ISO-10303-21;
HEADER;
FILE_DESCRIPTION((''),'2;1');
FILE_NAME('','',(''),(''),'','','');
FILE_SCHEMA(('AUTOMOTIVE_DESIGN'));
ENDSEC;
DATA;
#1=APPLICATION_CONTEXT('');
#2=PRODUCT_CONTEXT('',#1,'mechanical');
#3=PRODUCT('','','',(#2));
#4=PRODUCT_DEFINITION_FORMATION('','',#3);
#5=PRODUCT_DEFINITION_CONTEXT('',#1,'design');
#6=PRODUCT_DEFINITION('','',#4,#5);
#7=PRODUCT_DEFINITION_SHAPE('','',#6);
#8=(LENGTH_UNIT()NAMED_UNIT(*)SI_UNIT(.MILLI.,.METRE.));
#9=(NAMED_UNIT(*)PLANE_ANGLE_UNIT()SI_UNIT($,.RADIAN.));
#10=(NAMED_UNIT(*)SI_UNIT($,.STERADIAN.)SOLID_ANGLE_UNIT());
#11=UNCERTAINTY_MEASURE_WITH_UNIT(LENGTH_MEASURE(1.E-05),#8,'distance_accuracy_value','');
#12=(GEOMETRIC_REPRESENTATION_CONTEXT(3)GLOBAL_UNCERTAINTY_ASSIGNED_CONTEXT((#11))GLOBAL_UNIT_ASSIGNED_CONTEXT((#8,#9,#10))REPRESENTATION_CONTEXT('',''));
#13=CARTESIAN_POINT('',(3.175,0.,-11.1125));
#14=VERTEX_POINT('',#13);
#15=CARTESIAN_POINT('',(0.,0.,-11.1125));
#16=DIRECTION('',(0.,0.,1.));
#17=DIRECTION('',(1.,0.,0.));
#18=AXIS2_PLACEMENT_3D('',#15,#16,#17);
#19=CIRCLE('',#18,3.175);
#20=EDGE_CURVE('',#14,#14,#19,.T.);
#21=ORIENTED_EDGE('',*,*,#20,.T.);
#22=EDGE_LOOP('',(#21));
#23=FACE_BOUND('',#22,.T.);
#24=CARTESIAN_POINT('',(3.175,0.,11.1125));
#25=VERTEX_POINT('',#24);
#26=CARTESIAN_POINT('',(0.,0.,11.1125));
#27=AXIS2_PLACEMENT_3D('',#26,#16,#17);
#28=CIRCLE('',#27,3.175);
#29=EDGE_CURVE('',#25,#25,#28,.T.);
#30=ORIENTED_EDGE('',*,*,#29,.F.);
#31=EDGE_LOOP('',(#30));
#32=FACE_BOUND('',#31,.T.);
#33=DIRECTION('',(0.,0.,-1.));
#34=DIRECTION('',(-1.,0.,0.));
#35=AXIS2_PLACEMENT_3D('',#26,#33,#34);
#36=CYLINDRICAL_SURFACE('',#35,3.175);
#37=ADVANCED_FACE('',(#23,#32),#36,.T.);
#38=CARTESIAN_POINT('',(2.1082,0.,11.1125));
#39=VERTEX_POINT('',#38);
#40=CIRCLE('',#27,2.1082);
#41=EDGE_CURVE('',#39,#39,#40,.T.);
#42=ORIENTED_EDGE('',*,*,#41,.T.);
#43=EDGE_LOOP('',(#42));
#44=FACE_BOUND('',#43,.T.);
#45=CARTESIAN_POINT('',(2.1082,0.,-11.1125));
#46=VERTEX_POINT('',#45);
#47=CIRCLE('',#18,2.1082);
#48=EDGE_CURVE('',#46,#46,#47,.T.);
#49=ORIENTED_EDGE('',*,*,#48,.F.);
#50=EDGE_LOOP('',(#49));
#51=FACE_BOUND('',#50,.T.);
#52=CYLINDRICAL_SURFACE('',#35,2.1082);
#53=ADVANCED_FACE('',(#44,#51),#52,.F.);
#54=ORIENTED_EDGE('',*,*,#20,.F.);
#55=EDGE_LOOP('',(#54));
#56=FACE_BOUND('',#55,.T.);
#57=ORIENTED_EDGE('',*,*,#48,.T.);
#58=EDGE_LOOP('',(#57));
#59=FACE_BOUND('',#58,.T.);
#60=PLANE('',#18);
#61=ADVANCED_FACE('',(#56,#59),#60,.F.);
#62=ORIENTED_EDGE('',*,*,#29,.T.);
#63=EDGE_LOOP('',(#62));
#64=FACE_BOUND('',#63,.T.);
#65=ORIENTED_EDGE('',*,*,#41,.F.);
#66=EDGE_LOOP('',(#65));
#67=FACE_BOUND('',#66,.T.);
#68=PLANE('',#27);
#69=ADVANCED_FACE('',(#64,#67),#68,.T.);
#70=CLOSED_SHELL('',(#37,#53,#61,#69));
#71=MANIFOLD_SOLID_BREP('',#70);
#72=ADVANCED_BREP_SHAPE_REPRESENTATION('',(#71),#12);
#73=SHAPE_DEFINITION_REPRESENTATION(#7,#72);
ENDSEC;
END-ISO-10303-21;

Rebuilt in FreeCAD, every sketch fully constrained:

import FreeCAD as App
import Part
import Sketcher
from FreeCAD import Vector
Q = App.Units.Quantity

doc = App.newDocument("Part")
body = doc.addObject("PartDesign::Body", "Body")

# Sketch on XY plane
sketch1 = doc.addObject("Sketcher::SketchObject", "Sketch")
body.addObject(sketch1)
sketch1.AttachmentSupport = (doc.XY_Plane, [""])
sketch1.MapMode = "FlatFace"
sketch1.addGeometry([
    Part.Circle(Vector(0, 0, 0), Vector(0, 0, 1), 3.2),
    Part.Circle(Vector(0, 0, 0), Vector(0, 0, 1), 2.1),
], False)
sketch1.addConstraint([
    Sketcher.Constraint("Coincident", 0, 3, -1, 1),
    Sketcher.Constraint("Coincident", 1, 3, -1, 1),
    Sketcher.Constraint("Diameter", 0, Q("0.25 in")),
    Sketcher.Constraint("Diameter", 1, Q("0.166 in")),
])
pad1 = doc.addObject("PartDesign::Pad", "Pad")
body.addObject(pad1)
pad1.Profile = sketch1
pad1.Length = Q("0.875 in")
pad1.Midplane = True

doc.recompute()
